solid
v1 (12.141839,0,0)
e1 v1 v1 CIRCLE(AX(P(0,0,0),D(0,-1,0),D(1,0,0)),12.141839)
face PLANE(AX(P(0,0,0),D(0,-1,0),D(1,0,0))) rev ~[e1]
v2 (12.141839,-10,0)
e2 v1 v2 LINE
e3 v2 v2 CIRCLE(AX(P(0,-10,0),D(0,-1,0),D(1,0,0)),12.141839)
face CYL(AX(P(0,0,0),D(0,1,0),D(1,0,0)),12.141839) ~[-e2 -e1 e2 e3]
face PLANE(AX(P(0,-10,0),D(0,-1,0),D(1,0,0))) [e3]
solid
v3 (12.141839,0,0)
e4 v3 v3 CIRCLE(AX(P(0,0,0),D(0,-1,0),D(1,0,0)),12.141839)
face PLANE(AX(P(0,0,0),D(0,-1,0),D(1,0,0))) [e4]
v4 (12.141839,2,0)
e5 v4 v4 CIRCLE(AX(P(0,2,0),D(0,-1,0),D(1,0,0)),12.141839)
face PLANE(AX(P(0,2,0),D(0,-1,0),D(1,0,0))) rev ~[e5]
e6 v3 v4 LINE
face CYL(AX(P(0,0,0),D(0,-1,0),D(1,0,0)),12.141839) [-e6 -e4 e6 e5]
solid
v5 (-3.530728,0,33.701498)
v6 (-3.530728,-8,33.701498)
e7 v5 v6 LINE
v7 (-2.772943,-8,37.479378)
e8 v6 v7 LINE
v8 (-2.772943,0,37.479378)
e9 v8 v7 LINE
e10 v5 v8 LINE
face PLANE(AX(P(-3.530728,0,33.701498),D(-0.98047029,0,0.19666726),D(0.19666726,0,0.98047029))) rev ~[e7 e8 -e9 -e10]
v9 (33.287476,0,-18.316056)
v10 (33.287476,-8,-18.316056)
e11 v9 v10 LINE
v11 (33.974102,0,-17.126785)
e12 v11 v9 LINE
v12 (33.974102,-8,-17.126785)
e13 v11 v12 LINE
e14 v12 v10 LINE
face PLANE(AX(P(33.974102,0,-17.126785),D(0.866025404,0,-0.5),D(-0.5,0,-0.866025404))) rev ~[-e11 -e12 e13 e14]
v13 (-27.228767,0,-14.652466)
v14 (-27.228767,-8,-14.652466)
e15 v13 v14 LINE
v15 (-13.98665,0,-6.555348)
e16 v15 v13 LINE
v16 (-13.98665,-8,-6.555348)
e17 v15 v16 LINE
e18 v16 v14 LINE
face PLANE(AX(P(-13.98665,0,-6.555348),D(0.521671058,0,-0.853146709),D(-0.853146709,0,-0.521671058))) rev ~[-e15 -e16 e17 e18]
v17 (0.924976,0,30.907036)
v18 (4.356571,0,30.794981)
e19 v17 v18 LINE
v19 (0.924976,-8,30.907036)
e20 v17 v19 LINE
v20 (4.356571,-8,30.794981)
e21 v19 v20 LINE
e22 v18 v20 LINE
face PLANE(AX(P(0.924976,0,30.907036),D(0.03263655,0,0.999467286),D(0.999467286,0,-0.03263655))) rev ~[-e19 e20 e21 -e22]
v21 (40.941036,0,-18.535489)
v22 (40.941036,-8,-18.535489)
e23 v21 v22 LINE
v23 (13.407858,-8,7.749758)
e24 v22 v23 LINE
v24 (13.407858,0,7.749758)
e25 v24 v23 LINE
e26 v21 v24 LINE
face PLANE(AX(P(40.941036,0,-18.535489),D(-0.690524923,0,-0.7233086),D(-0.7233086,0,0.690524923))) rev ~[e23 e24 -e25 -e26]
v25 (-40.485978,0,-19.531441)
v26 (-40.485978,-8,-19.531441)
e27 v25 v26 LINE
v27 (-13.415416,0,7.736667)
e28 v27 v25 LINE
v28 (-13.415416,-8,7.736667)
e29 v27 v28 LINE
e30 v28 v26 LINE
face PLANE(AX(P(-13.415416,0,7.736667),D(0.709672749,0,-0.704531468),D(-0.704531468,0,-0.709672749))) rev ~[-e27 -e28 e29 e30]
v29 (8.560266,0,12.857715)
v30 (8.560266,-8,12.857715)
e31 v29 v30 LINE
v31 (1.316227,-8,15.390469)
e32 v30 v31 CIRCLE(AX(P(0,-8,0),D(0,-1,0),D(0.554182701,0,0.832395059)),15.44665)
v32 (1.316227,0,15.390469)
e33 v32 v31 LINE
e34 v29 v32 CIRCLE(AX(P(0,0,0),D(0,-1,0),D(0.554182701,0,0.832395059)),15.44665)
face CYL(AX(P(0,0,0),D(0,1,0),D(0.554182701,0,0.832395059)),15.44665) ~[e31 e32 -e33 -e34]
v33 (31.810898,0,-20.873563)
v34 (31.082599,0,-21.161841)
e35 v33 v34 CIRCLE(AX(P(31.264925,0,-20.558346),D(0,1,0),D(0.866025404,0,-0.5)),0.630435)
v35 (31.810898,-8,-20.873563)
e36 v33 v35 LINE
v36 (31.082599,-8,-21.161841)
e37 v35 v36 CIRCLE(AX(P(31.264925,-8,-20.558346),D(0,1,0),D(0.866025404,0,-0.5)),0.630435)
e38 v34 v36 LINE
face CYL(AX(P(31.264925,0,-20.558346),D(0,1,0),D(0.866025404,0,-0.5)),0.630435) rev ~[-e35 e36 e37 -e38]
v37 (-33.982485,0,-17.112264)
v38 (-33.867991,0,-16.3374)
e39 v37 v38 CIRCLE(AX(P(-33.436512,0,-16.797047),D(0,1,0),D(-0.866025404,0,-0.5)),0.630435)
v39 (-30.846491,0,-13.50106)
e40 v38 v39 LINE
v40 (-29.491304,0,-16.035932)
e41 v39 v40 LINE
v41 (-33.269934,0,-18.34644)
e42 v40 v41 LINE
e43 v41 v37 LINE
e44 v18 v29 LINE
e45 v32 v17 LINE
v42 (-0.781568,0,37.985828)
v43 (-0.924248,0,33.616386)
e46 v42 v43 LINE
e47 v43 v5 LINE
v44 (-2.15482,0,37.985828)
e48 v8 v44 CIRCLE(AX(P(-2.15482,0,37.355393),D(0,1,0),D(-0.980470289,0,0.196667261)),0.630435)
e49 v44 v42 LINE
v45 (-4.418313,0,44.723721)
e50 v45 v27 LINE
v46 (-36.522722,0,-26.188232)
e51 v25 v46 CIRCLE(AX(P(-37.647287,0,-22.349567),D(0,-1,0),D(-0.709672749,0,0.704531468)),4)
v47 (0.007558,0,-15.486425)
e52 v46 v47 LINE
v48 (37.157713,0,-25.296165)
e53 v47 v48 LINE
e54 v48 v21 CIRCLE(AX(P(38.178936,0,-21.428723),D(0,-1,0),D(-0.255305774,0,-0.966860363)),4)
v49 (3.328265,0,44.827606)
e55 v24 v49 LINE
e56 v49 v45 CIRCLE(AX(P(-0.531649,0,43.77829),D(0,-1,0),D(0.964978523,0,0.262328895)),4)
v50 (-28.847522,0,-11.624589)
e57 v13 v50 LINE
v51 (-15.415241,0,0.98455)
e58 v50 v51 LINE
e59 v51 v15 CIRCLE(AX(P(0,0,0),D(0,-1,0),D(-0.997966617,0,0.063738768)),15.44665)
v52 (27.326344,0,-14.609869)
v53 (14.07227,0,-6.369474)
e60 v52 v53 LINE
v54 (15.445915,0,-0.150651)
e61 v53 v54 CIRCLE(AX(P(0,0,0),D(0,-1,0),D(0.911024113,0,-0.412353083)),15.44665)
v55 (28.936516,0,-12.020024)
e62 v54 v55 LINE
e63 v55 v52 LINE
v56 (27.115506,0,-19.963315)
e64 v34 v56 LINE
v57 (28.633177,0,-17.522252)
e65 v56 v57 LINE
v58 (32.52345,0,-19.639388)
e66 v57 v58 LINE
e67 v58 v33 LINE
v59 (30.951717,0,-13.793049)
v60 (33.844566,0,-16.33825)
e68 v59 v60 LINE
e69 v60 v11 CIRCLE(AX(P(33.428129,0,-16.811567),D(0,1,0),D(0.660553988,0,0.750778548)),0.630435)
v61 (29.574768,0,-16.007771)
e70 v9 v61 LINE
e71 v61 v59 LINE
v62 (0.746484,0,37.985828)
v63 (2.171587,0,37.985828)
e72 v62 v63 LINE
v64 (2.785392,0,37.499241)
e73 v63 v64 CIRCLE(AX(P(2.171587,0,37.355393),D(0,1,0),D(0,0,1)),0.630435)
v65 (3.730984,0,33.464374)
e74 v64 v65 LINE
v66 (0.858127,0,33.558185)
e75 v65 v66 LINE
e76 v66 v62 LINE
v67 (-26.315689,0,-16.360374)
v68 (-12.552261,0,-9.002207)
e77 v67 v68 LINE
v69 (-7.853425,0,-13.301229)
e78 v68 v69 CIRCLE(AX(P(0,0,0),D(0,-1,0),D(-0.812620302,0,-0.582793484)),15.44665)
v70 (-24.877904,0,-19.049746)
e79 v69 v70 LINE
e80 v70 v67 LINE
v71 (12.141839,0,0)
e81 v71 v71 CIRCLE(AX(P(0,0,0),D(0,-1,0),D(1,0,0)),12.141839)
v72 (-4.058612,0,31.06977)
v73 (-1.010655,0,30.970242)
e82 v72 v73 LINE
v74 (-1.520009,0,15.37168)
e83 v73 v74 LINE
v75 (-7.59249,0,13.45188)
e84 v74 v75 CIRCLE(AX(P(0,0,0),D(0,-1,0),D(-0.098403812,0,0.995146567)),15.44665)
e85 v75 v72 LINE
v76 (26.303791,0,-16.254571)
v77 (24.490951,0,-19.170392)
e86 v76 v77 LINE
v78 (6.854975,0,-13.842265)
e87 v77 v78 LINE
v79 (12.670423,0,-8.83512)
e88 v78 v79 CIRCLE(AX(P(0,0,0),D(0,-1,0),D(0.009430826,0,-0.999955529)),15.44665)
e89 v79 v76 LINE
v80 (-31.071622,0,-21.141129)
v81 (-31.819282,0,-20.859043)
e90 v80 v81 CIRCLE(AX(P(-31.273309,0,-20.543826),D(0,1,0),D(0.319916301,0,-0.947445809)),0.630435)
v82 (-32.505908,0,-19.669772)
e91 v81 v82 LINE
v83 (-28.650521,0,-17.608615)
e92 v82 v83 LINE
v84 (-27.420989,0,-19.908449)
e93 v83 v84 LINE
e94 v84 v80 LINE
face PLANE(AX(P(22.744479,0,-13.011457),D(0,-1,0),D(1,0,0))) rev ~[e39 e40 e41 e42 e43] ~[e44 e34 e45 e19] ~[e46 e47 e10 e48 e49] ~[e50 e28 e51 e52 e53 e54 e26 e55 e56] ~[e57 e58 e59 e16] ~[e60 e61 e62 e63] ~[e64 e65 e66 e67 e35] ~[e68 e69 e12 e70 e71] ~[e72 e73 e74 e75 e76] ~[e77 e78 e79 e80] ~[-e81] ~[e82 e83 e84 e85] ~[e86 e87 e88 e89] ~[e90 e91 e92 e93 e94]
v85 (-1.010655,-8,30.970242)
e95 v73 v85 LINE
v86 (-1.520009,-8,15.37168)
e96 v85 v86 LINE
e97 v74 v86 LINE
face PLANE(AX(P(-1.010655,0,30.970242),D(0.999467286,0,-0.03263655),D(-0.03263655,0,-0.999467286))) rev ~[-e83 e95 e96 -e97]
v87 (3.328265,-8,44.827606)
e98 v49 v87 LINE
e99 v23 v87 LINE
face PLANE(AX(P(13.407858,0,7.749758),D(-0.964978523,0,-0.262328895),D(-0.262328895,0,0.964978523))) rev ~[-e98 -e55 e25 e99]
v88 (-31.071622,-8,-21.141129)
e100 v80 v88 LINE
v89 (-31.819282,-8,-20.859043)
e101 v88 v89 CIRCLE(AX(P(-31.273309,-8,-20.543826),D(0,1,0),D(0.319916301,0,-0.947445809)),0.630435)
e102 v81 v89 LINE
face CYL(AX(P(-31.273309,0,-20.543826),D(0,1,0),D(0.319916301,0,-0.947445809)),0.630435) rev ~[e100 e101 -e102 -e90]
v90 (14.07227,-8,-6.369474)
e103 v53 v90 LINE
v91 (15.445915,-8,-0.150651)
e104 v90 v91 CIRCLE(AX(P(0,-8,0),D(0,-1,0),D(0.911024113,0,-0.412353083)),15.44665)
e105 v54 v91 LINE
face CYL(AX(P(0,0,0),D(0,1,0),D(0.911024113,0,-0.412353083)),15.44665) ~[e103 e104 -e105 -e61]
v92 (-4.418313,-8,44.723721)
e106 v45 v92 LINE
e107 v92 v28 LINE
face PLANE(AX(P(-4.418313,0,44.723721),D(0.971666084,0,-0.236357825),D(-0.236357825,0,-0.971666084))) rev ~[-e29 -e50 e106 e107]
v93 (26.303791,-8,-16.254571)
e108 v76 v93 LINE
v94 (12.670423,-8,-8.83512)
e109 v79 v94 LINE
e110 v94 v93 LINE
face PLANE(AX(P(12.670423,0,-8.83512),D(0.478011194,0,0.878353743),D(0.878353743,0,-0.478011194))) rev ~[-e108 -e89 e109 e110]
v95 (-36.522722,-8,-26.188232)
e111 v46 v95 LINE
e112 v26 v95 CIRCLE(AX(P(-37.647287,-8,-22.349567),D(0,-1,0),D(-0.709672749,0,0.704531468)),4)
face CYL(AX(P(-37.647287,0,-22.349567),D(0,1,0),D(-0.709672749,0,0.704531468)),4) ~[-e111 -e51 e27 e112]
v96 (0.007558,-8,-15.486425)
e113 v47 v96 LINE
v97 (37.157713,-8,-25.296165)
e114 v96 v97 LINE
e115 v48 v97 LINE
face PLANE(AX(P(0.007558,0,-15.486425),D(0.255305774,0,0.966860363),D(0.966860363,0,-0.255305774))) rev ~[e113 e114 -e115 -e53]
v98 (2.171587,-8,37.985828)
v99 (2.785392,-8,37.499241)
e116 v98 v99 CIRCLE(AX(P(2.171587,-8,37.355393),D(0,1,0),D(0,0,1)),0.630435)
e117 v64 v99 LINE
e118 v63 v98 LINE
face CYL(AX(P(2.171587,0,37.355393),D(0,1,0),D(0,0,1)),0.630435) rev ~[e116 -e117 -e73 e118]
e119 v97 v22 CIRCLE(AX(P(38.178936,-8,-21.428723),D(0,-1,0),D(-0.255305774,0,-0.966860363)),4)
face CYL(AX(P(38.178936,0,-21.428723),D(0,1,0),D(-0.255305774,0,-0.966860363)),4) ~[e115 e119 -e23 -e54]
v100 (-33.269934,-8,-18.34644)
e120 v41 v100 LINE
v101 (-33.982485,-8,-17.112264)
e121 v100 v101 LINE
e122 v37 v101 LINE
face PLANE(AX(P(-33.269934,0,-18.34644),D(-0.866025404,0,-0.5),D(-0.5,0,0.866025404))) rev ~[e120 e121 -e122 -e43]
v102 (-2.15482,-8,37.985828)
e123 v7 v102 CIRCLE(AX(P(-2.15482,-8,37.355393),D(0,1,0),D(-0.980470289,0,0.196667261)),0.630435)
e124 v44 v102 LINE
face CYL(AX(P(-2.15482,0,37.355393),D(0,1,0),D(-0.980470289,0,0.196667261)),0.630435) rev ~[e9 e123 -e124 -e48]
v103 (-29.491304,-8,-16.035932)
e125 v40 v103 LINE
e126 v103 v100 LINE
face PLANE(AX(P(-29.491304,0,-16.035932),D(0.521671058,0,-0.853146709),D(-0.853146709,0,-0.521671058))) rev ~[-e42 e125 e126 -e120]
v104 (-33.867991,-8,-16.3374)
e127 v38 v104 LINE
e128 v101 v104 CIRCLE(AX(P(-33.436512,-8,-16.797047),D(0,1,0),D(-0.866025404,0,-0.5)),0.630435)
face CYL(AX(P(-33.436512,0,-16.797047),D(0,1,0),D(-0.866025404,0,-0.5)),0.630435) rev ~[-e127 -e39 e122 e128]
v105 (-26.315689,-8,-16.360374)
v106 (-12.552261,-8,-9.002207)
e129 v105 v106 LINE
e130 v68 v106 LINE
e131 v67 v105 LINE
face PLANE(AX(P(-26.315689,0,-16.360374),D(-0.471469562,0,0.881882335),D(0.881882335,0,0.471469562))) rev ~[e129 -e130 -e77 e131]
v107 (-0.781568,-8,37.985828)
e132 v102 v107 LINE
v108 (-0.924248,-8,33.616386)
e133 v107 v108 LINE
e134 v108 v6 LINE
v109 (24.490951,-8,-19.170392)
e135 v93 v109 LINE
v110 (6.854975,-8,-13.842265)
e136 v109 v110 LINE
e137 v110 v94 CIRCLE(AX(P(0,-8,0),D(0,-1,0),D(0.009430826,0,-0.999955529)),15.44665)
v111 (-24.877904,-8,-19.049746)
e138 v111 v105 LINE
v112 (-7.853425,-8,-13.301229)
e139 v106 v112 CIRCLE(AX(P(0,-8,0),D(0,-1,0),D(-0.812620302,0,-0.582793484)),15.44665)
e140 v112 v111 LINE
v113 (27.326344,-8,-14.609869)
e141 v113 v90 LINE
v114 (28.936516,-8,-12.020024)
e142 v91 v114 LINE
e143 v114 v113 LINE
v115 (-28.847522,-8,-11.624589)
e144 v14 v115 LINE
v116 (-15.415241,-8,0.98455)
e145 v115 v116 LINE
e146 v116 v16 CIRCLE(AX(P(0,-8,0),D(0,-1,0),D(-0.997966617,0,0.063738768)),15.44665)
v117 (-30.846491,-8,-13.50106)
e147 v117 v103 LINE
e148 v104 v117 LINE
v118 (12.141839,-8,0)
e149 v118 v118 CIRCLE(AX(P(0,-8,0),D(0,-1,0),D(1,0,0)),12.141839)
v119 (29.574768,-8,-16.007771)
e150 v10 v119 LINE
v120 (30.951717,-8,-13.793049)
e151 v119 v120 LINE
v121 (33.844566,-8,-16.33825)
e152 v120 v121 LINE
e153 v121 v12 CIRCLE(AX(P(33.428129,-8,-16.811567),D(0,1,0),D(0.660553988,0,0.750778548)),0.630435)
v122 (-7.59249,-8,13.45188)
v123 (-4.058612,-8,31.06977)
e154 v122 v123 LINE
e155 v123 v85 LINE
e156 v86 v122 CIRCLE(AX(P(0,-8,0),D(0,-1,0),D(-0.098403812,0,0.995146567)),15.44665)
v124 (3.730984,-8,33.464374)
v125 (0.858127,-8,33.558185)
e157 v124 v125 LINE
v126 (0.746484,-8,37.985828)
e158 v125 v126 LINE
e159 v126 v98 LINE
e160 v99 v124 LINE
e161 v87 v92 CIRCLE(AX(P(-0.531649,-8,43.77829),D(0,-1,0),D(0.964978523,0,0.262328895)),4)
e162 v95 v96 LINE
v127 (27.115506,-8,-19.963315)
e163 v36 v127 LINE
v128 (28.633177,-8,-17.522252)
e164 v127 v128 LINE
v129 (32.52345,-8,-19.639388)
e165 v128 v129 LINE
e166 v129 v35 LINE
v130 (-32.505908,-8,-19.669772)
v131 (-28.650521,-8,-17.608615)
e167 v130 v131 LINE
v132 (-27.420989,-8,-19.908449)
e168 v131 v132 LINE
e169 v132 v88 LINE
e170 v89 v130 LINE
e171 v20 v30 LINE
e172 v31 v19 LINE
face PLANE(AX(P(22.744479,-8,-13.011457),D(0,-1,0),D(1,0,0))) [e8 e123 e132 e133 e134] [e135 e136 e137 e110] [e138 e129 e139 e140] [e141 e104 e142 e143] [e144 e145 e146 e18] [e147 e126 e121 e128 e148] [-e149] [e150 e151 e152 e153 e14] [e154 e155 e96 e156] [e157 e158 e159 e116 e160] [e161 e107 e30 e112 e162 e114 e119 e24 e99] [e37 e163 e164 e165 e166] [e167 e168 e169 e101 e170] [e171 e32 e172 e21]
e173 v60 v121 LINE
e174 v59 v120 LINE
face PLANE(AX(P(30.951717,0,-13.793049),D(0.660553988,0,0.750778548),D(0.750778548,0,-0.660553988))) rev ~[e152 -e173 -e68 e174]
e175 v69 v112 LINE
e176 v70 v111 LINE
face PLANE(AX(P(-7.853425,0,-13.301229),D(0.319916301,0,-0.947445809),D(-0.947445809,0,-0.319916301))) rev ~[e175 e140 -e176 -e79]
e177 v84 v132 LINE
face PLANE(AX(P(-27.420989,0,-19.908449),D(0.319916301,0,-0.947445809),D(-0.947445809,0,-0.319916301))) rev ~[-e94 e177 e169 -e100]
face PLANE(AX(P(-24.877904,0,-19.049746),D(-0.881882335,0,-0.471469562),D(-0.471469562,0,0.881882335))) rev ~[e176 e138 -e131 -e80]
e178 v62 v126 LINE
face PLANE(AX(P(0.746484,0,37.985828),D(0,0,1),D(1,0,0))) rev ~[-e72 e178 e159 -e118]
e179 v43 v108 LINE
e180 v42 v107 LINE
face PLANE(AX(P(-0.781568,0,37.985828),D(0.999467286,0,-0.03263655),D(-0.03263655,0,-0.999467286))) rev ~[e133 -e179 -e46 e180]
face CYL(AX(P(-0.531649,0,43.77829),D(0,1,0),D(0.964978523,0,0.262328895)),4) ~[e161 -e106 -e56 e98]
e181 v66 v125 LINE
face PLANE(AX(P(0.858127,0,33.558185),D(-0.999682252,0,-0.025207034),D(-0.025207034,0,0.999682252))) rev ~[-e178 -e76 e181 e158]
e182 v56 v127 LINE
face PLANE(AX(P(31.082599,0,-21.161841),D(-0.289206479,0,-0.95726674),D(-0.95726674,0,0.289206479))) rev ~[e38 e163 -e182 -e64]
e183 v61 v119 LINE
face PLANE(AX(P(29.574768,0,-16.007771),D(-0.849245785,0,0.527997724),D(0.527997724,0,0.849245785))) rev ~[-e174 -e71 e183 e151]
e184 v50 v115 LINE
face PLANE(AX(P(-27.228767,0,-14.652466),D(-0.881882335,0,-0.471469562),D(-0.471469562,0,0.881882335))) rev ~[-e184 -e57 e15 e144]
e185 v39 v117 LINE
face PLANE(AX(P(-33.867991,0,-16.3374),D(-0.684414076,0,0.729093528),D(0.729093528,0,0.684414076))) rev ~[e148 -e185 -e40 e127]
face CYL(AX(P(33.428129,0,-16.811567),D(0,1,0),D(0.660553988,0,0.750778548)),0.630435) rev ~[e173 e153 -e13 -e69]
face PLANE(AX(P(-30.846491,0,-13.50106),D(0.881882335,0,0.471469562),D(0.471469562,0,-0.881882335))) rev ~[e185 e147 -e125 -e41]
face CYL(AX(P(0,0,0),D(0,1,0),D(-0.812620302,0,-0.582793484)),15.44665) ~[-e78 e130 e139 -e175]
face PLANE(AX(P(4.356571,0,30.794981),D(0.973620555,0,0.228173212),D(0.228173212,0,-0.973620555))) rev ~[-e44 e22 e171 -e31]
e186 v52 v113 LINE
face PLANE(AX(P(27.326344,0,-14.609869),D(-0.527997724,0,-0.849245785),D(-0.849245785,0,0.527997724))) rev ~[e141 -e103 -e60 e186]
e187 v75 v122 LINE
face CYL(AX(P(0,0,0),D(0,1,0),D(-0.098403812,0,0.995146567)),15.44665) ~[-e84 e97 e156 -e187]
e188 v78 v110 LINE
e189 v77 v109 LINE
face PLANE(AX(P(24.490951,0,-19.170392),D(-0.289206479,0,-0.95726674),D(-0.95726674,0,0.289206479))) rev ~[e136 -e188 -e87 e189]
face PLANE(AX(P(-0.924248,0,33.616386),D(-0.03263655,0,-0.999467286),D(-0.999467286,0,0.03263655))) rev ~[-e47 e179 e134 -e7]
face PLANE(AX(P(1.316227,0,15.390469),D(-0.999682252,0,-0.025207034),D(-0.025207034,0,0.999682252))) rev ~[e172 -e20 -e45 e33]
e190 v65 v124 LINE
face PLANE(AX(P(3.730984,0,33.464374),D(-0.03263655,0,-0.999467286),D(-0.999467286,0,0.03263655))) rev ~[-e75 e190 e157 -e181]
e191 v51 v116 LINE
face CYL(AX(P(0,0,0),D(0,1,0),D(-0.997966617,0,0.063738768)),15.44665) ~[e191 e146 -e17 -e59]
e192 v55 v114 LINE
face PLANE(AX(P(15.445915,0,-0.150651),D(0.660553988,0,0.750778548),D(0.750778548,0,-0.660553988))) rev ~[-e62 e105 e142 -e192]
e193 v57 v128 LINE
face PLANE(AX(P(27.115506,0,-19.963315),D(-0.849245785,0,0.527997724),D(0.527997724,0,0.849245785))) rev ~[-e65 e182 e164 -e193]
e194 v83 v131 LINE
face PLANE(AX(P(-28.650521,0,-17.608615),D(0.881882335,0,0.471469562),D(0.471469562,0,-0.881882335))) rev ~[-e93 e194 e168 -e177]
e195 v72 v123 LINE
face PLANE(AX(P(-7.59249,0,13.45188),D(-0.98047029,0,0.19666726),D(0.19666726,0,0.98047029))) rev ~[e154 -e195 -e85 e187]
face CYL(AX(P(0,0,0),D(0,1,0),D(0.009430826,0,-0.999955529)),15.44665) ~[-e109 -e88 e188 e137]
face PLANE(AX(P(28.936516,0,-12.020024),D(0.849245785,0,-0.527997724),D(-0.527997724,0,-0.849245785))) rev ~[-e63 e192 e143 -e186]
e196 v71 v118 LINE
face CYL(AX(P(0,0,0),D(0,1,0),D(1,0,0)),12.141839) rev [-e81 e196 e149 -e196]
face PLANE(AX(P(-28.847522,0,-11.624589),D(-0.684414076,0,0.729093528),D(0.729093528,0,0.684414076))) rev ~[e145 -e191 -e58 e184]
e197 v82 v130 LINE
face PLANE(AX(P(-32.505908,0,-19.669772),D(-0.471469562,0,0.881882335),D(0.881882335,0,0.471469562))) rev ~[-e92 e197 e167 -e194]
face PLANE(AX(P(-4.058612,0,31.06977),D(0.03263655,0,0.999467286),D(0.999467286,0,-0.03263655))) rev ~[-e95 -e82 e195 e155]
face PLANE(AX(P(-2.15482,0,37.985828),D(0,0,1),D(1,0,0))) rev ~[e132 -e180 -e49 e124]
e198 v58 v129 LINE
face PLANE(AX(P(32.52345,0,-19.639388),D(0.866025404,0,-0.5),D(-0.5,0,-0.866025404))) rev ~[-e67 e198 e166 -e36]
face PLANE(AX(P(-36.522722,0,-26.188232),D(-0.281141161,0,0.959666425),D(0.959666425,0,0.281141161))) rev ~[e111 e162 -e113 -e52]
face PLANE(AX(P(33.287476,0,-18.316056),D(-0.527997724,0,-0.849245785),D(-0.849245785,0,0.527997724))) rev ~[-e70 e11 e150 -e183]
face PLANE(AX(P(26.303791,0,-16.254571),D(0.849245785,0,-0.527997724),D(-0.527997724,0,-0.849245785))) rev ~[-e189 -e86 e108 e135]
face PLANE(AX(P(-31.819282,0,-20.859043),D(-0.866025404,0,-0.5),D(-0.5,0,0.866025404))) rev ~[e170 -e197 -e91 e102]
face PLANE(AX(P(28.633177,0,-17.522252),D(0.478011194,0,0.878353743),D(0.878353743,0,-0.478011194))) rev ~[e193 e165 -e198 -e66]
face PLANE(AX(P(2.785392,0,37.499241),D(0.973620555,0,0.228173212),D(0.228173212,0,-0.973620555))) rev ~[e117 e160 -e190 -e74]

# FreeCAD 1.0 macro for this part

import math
import FreeCAD as App
import Part
import Sketcher

V = App.Vector

doc = App.newDocument("Part")
body = doc.addObject("PartDesign::Body", "Body")

# Sketch on XZ plane
sketch1 = body.newObject("Sketcher::SketchObject", "Sketch")
sketch1.AttachmentSupport = (doc.getObject("XZ_Plane"), [""])
sketch1.MapMode = "FlatFace"
sketch1.addGeometry([
    Part.LineSegment(V(-36.522722, -26.188232, 0), V(0.007558, -15.486425, 0)),  # 0
    Part.LineSegment(V(0.007558, -15.486425, 0), V(37.157713, -25.296165, 0)),  # 1
    Part.ArcOfCircle(Part.Circle(V(38.178936, -21.428723, 0), V(0, 0, 1), 4), math.radians(-104.791704), math.radians(46.328325)),  # 2
    Part.LineSegment(V(40.941036, -18.535489, 0), V(13.407858, 7.749758, 0)),  # 3
    Part.LineSegment(V(13.407858, 7.749758, 0), V(3.328265, 44.827606, 0)),  # 4
    Part.ArcOfCircle(Part.Circle(V(-0.531649, 43.77829, 0), V(0, 0, 1), 4), math.radians(15.208296), math.radians(166.328325)),  # 5
    Part.LineSegment(V(-4.418313, 44.723721, 0), V(-13.415416, 7.736667, 0)),  # 6
    Part.LineSegment(V(-13.415416, 7.736667, 0), V(-40.485978, -19.531441, 0)),  # 7
    Part.ArcOfCircle(Part.Circle(V(-37.647287, -22.349567, 0), V(0, 0, 1), 4), math.radians(135.208296), math.radians(286.328325)),  # 8
    Part.LineSegment(V(-7.853425, -13.301229, 0), V(-24.877904, -19.049746, 0)),  # 9
    Part.LineSegment(V(-24.877904, -19.049746, 0), V(-26.315689, -16.360374, 0)),  # 10
    Part.LineSegment(V(-26.315689, -16.360374, 0), V(-12.552261, -9.002207, 0)),  # 11
    Part.ArcOfCircle(Part.Circle(V(0, 0, 0), V(0, 0, 1), 15.44665), math.radians(-144.352738), math.radians(-120.558813)),  # 12
    Part.LineSegment(V(-27.420989, -19.908449, 0), V(-31.071622, -21.141129, 0)),  # 13
    Part.ArcOfCircle(Part.Circle(V(-31.273309, -20.543826, 0), V(0, 0, 1), 0.630435), math.radians(-150), math.radians(-71.342137)),  # 14
    Part.LineSegment(V(-31.819282, -20.859043, 0), V(-32.505908, -19.669772, 0)),  # 15
    Part.LineSegment(V(-32.505908, -19.669772, 0), V(-28.650521, -17.608615, 0)),  # 16
    Part.LineSegment(V(-28.650521, -17.608615, 0), V(-27.420989, -19.908449, 0)),  # 17
    Part.LineSegment(V(-13.98665, -6.555348, 0), V(-27.228767, -14.652466, 0)),  # 18
    Part.LineSegment(V(-27.228767, -14.652466, 0), V(-28.847522, -11.624589, 0)),  # 19
    Part.LineSegment(V(-28.847522, -11.624589, 0), V(-15.415241, 0.98455, 0)),  # 20
    Part.ArcOfCircle(Part.Circle(V(0, 0, 0), V(0, 0, 1), 15.44665), math.radians(176.34556), math.radians(205.111833)),  # 21
    Part.LineSegment(V(-29.491304, -16.035932, 0), V(-33.269934, -18.34644, 0)),  # 22
    Part.LineSegment(V(-33.269934, -18.34644, 0), V(-33.982485, -17.112264, 0)),  # 23
    Part.ArcOfCircle(Part.Circle(V(-33.436512, -16.797047, 0), V(0, 0, 1), 0.630435), math.radians(133.189545), math.radians(210)),  # 24
    Part.LineSegment(V(-33.867991, -16.3374, 0), V(-30.846491, -13.50106, 0)),  # 25
    Part.LineSegment(V(-30.846491, -13.50106, 0), V(-29.491304, -16.035932, 0)),  # 26
    Part.LineSegment(V(15.445915, -0.150651, 0), V(28.936516, -12.020024, 0)),  # 27
    Part.LineSegment(V(28.936516, -12.020024, 0), V(27.326344, -14.609869, 0)),  # 28
    Part.LineSegment(V(27.326344, -14.609869, 0), V(14.07227, -6.369474, 0)),  # 29
    Part.ArcOfCircle(Part.Circle(V(0, 0, 0), V(0, 0, 1), 15.44665), math.radians(-24.352738), math.radians(-0.558813)),  # 30
    Part.LineSegment(V(30.951717, -13.793049, 0), V(33.844566, -16.33825, 0)),  # 31
    Part.ArcOfCircle(Part.Circle(V(33.428129, -16.811567, 0), V(0, 0, 1), 0.630435), math.radians(-30), math.radians(48.657863)),  # 32
    Part.LineSegment(V(33.974102, -17.126785, 0), V(33.287476, -18.316056, 0)),  # 33
    Part.LineSegment(V(33.287476, -18.316056, 0), V(29.574768, -16.007771, 0)),  # 34
    Part.LineSegment(V(29.574768, -16.007771, 0), V(30.951717, -13.793049, 0)),  # 35
    Part.LineSegment(V(28.633177, -17.522252, 0), V(32.52345, -19.639388, 0)),  # 36
    Part.LineSegment(V(32.52345, -19.639388, 0), V(31.810898, -20.873563, 0)),  # 37
    Part.ArcOfCircle(Part.Circle(V(31.264925, -20.558346, 0), V(0, 0, 1), 0.630435), math.radians(-106.810455), math.radians(-30)),  # 38
    Part.LineSegment(V(31.082599, -21.161841, 0), V(27.115506, -19.963315, 0)),  # 39
    Part.LineSegment(V(27.115506, -19.963315, 0), V(28.633177, -17.522252, 0)),  # 40
    Part.LineSegment(V(24.490951, -19.170392, 0), V(6.854975, -13.842265, 0)),  # 41
    Part.ArcOfCircle(Part.Circle(V(0, 0, 0), V(0, 0, 1), 15.44665), math.radians(-63.65444), math.radians(-34.888167)),  # 42
    Part.LineSegment(V(12.670423, -8.83512, 0), V(26.303791, -16.254571, 0)),  # 43
    Part.LineSegment(V(26.303791, -16.254571, 0), V(24.490951, -19.170392, 0)),  # 44
    Part.Circle(V(0, 0, 0), V(0, 0, 1), 12.141839),  # 45
    Part.LineSegment(V(-7.59249, 13.45188, 0), V(-4.058612, 31.06977, 0)),  # 46
    Part.LineSegment(V(-4.058612, 31.06977, 0), V(-1.010655, 30.970242, 0)),  # 47
    Part.LineSegment(V(-1.010655, 30.970242, 0), V(-1.520009, 15.37168, 0)),  # 48
    Part.ArcOfCircle(Part.Circle(V(0, 0, 0), V(0, 0, 1), 15.44665), math.radians(95.647262), math.radians(119.441187)),  # 49
    Part.LineSegment(V(-3.530728, 33.701498, 0), V(-2.772943, 37.479379, 0)),  # 50
    Part.ArcOfCircle(Part.Circle(V(-2.15482, 37.355393, 0), V(0, 0, 1), 0.630435), math.radians(90), math.radians(168.657863)),  # 51
    Part.LineSegment(V(-2.15482, 37.985828, 0), V(-0.781568, 37.985828, 0)),  # 52
    Part.LineSegment(V(-0.781568, 37.985828, 0), V(-0.924248, 33.616386, 0)),  # 53
    Part.LineSegment(V(-0.924248, 33.616386, 0), V(-3.530728, 33.701498, 0)),  # 54
    Part.LineSegment(V(0.858127, 33.558185, 0), V(0.746484, 37.985828, 0)),  # 55
    Part.LineSegment(V(0.746484, 37.985828, 0), V(2.171587, 37.985828, 0)),  # 56
    Part.ArcOfCircle(Part.Circle(V(2.171587, 37.355393, 0), V(0, 0, 1), 0.630435), math.radians(13.189545), math.radians(90)),  # 57
    Part.LineSegment(V(2.785392, 37.499241, 0), V(3.730984, 33.464374, 0)),  # 58
    Part.LineSegment(V(3.730984, 33.464374, 0), V(0.858127, 33.558185, 0)),  # 59
    Part.LineSegment(V(4.356571, 30.794981, 0), V(8.560266, 12.857715, 0)),  # 60
    Part.ArcOfCircle(Part.Circle(V(0, 0, 0), V(0, 0, 1), 15.44665), math.radians(56.34556), math.radians(85.111833)),  # 61
    Part.LineSegment(V(1.316227, 15.390469, 0), V(0.924976, 30.907036, 0)),  # 62
    Part.LineSegment(V(0.924976, 30.907036, 0), V(4.356571, 30.794981, 0)),  # 63
], False)
sketch1.addConstraint([
    Sketcher.Constraint("Coincident", 0, 2, 1, 1),
    Sketcher.Constraint("Coincident", 1, 2, 2, 1),
    Sketcher.Constraint("Coincident", 2, 2, 3, 1),
    Sketcher.Constraint("Coincident", 3, 2, 4, 1),
    Sketcher.Constraint("Coincident", 4, 2, 5, 1),
    Sketcher.Constraint("Coincident", 5, 2, 6, 1),
    Sketcher.Constraint("Coincident", 6, 2, 7, 1),
    Sketcher.Constraint("Coincident", 7, 2, 8, 1),
    Sketcher.Constraint("Coincident", 8, 2, 0, 1),
    Sketcher.Constraint("Coincident", 9, 2, 10, 1),
    Sketcher.Constraint("Coincident", 10, 2, 11, 1),
    Sketcher.Constraint("Coincident", 11, 2, 12, 1),
    Sketcher.Constraint("Coincident", 12, 2, 9, 1),
    Sketcher.Constraint("Coincident", 13, 2, 14, 2),
    Sketcher.Constraint("Coincident", 14, 1, 15, 1),
    Sketcher.Constraint("Coincident", 15, 2, 16, 1),
    Sketcher.Constraint("Coincident", 16, 2, 17, 1),
    Sketcher.Constraint("Coincident", 17, 2, 13, 1),
    Sketcher.Constraint("Coincident", 18, 2, 19, 1),
    Sketcher.Constraint("Coincident", 19, 2, 20, 1),
    Sketcher.Constraint("Coincident", 20, 2, 21, 1),
    Sketcher.Constraint("Coincident", 21, 2, 18, 1),
    Sketcher.Constraint("Coincident", 22, 2, 23, 1),
    Sketcher.Constraint("Coincident", 23, 2, 24, 2),
    Sketcher.Constraint("Coincident", 24, 1, 25, 1),
    Sketcher.Constraint("Coincident", 25, 2, 26, 1),
    Sketcher.Constraint("Coincident", 26, 2, 22, 1),
    Sketcher.Constraint("Coincident", 27, 2, 28, 1),
    Sketcher.Constraint("Coincident", 28, 2, 29, 1),
    Sketcher.Constraint("Coincident", 29, 2, 30, 1),
    Sketcher.Constraint("Coincident", 30, 2, 27, 1),
    Sketcher.Constraint("Coincident", 31, 2, 32, 2),
    Sketcher.Constraint("Coincident", 32, 1, 33, 1),
    Sketcher.Constraint("Coincident", 33, 2, 34, 1),
    Sketcher.Constraint("Coincident", 34, 2, 35, 1),
    Sketcher.Constraint("Coincident", 35, 2, 31, 1),
    Sketcher.Constraint("Coincident", 36, 2, 37, 1),
    Sketcher.Constraint("Coincident", 37, 2, 38, 2),
    Sketcher.Constraint("Coincident", 38, 1, 39, 1),
    Sketcher.Constraint("Coincident", 39, 2, 40, 1),
    Sketcher.Constraint("Coincident", 40, 2, 36, 1),
    Sketcher.Constraint("Coincident", 41, 2, 42, 1),
    Sketcher.Constraint("Coincident", 42, 2, 43, 1),
    Sketcher.Constraint("Coincident", 43, 2, 44, 1),
    Sketcher.Constraint("Coincident", 44, 2, 41, 1),
    Sketcher.Constraint("Coincident", 46, 2, 47, 1),
    Sketcher.Constraint("Coincident", 47, 2, 48, 1),
    Sketcher.Constraint("Coincident", 48, 2, 49, 1),
    Sketcher.Constraint("Coincident", 49, 2, 46, 1),
    Sketcher.Constraint("Coincident", 50, 2, 51, 2),
    Sketcher.Constraint("Coincident", 51, 1, 52, 1),
    Sketcher.Constraint("Coincident", 52, 2, 53, 1),
    Sketcher.Constraint("Coincident", 53, 2, 54, 1),
    Sketcher.Constraint("Coincident", 54, 2, 50, 1),
    Sketcher.Constraint("Coincident", 55, 2, 56, 1),
    Sketcher.Constraint("Coincident", 56, 2, 57, 2),
    Sketcher.Constraint("Coincident", 57, 1, 58, 1),
    Sketcher.Constraint("Coincident", 58, 2, 59, 1),
    Sketcher.Constraint("Coincident", 59, 2, 55, 1),
    Sketcher.Constraint("Coincident", 60, 2, 61, 1),
    Sketcher.Constraint("Coincident", 61, 2, 62, 1),
    Sketcher.Constraint("Coincident", 62, 2, 63, 1),
    Sketcher.Constraint("Coincident", 63, 2, 60, 1),
    Sketcher.Constraint("Horizontal", 52),
    Sketcher.Constraint("Horizontal", 56),
    Sketcher.Constraint("Coincident", 12, 3, -1, 1),
    Sketcher.Constraint("Coincident", 21, 3, -1, 1),
    Sketcher.Constraint("Coincident", 30, 3, -1, 1),
    Sketcher.Constraint("Coincident", 42, 3, -1, 1),
    Sketcher.Constraint("Coincident", 45, 3, -1, 1),
    Sketcher.Constraint("Coincident", 49, 3, -1, 1),
    Sketcher.Constraint("Coincident", 61, 3, -1, 1),
    Sketcher.Constraint("Radius", 2, 4.0),
    Sketcher.Constraint("Radius", 5, 4.0),
    Sketcher.Constraint("Radius", 8, 4.0),
    Sketcher.Constraint("Diameter", 45, 24.283678),
    Sketcher.Constraint("Radius", 12, 15.44665),
    Sketcher.Constraint("Radius", 21, 15.44665),
    Sketcher.Constraint("Radius", 30, 15.44665),
    Sketcher.Constraint("Radius", 42, 15.44665),
    Sketcher.Constraint("Radius", 49, 15.44665),
    Sketcher.Constraint("Radius", 61, 15.44665),
    Sketcher.Constraint("Radius", 14, 0.630435),
    Sketcher.Constraint("Radius", 24, 0.630435),
    Sketcher.Constraint("Radius", 32, 0.630435),
    Sketcher.Constraint("Radius", 38, 0.630435),
    Sketcher.Constraint("Radius", 51, 0.630435),
    Sketcher.Constraint("Radius", 57, 0.630435),
    Sketcher.Constraint("Distance", 18, 15.5215),
    Sketcher.Constraint("Distance", 43, 15.5215),
    Sketcher.Constraint("Distance", 62, 15.5215),
    Sketcher.Constraint("DistanceY", 24, 1, -1, 1, 16.3374),
    Sketcher.Constraint("DistanceX", -1, 1, 37, 2, 31.810898),
    Sketcher.Constraint("DistanceX", -1, 1, 38, 1, 31.082599),
    Sketcher.Constraint("Distance", 13, 3.853131),
    Sketcher.Constraint("Distance", 16, 4.371771),
    Sketcher.Constraint("Distance", 17, 2.60787),
    Sketcher.Constraint("Distance", 20, 18.423262),
    Sketcher.Constraint("Distance", 22, 4.429051),
    Sketcher.Constraint("Distance", 26, 2.874389),
    Sketcher.Constraint("Distance", 31, 3.853131),
    Sketcher.Constraint("Distance", 34, 4.371771),
    Sketcher.Constraint("Distance", 35, 2.60787),
    Sketcher.Constraint("Distance", 36, 4.429051),
    Sketcher.Constraint("Distance", 40, 2.874389),
    Sketcher.Constraint("Distance", 41, 18.423262),
    Sketcher.Constraint("Distance", 50, 3.853131),
    Sketcher.Constraint("Distance", 53, 4.371771),
    Sketcher.Constraint("Distance", 54, 2.60787),
    Sketcher.Constraint("Distance", 55, 4.429051),
    Sketcher.Constraint("Distance", 59, 2.874389),
    Sketcher.Constraint("Distance", 60, 18.423262),
    Sketcher.Constraint("DistanceX", 52, 1, 52, 2, 1.373252),
    Sketcher.Constraint("DistanceX", 56, 1, 56, 2, 1.425103),
    Sketcher.Constraint("DistanceX", 5, 3, -1, 1, 0.531649),
    Sketcher.Constraint("DistanceY", -1, 1, 5, 3, 43.77829),
    Sketcher.Constraint("DistanceX", 14, 3, -1, 1, 31.273309),
    Sketcher.Constraint("DistanceX", -1, 1, 32, 3, 33.428129),
    Sketcher.Constraint("DistanceX", 51, 3, -1, 1, 2.15482),
    Sketcher.Constraint("DistanceX", -1, 1, 0, 2, 0.007558),
    Sketcher.Constraint("DistanceY", 2, 2, -1, 1, 18.535489),
    Sketcher.Constraint("DistanceX", -1, 1, 3, 2, 13.407858),
    Sketcher.Constraint("DistanceY", -1, 1, 3, 2, 7.749758),
    Sketcher.Constraint("DistanceY", -1, 1, 5, 2, 44.723721),
    Sketcher.Constraint("DistanceY", 7, 2, -1, 1, 19.531441),
    Sketcher.Constraint("DistanceX", 10, 2, -1, 1, 26.315689),
    Sketcher.Constraint("DistanceX", 11, 2, -1, 1, 12.552261),
    Sketcher.Constraint("DistanceY", 12, 2, -1, 1, 13.301229),
    Sketcher.Constraint("DistanceY", 13, 2, -1, 1, 21.141129),
    Sketcher.Constraint("DistanceX", 14, 1, -1, 1, 31.819282),
    Sketcher.Constraint("DistanceY", 15, 2, -1, 1, 19.669772),
    Sketcher.Constraint("DistanceX", 16, 2, -1, 1, 28.650521),
    Sketcher.Constraint("DistanceX", 17, 2, -1, 1, 27.420989),
    Sketcher.Constraint("DistanceY", 17, 2, -1, 1, 19.908449),
    Sketcher.Constraint("DistanceX", 19, 2, -1, 1, 28.847522),
    Sketcher.Constraint("DistanceY", 19, 2, -1, 1, 11.624589),
    Sketcher.Constraint("DistanceX", 21, 2, -1, 1, 13.98665),
    Sketcher.Constraint("DistanceY", 22, 2, -1, 1, 18.34644),
    Sketcher.Constraint("DistanceX", 24, 1, -1, 1, 33.867991),
    Sketcher.Constraint("DistanceX", 25, 2, -1, 1, 30.846491),
    Sketcher.Constraint("DistanceY", 25, 2, -1, 1, 13.50106),
    Sketcher.Constraint("DistanceY", 28, 2, -1, 1, 14.609869),
    Sketcher.Constraint("DistanceX", -1, 1, 29, 2, 14.07227),
    Sketcher.Constraint("DistanceY", 30, 2, -1, 1, 0.150651),
    Sketcher.Constraint("DistanceY", 31, 2, -1, 1, 16.33825),
    Sketcher.Constraint("DistanceX", -1, 1, 34, 2, 29.574768),
    Sketcher.Constraint("DistanceY", 34, 2, -1, 1, 16.007771),
    Sketcher.Constraint("DistanceY", 35, 2, -1, 1, 13.793049),
    Sketcher.Constraint("DistanceX", -1, 1, 36, 2, 32.52345),
    Sketcher.Constraint("DistanceY", 38, 1, -1, 1, 21.161841),
    Sketcher.Constraint("DistanceY", 42, 2, -1, 1, 8.83512),
    Sketcher.Constraint("DistanceX", -1, 1, 43, 2, 26.303791),
    Sketcher.Constraint("DistanceX", -1, 1, 44, 2, 24.490951),
    Sketcher.Constraint("DistanceY", 44, 2, -1, 1, 19.170392),
    Sketcher.Constraint("DistanceY", -1, 1, 46, 2, 31.06977),
    Sketcher.Constraint("DistanceX", 48, 2, -1, 1, 1.520009),
    Sketcher.Constraint("DistanceX", 49, 2, -1, 1, 7.59249),
    Sketcher.Constraint("DistanceY", -1, 1, 50, 2, 37.479379),
    Sketcher.Constraint("DistanceX", 51, 1, -1, 1, 2.15482),
    Sketcher.Constraint("DistanceX", 54, 2, -1, 1, 3.530728),
    Sketcher.Constraint("DistanceX", -1, 1, 57, 1, 2.785392),
    Sketcher.Constraint("DistanceY", -1, 1, 57, 1, 37.499241),
    Sketcher.Constraint("DistanceY", -1, 1, 61, 2, 15.390469),
    Sketcher.Constraint("DistanceX", -1, 1, 63, 2, 4.356571),
    Sketcher.Constraint("DistanceY", -1, 1, 63, 2, 30.794981),
    Sketcher.Constraint("Distance", 0, 38.065602),
    Sketcher.Constraint("Distance", 1, 38.423495),
    Sketcher.Constraint("Distance", 3, 38.065602),
    Sketcher.Constraint("Distance", 4, 38.423495),
    Sketcher.Constraint("Distance", 6, 38.065602),
    Sketcher.Constraint("Distance", 7, 38.423495),
    Sketcher.Constraint("Distance", 9, 17.968816),
    Sketcher.Constraint("Distance", 10, 3.049582),
    Sketcher.Constraint("Distance", 11, 15.606876),
    Sketcher.Constraint("Distance", 19, 3.433424),
    Sketcher.Constraint("Distance", 23, 1.425103),
    Sketcher.Constraint("Distance", 27, 17.968816),
    Sketcher.Constraint("Distance", 28, 3.049582),
    Sketcher.Constraint("Distance", 29, 15.606876),
    Sketcher.Constraint("Distance", 33, 1.373252),
    Sketcher.Constraint("Distance", 37, 1.425103),
    Sketcher.Constraint("Distance", 39, 4.144188),
    Sketcher.Constraint("Distance", 46, 17.968816),
    Sketcher.Constraint("Distance", 47, 3.049582),
    Sketcher.Constraint("Distance", 48, 15.606876),
    Sketcher.Constraint("Distance", 58, 4.144188),
    Sketcher.Constraint("Distance", 63, 3.433424),
    Sketcher.Constraint("DistanceX", -1, 1, 2, 3, 38.178936),
    Sketcher.Constraint("DistanceX", 8, 3, -1, 1, 37.647287),
    Sketcher.Constraint("DistanceY", 8, 3, -1, 1, 22.349567),
    Sketcher.Constraint("DistanceX", 24, 3, -1, 1, 33.436512),
    Sketcher.Constraint("DistanceX", -1, 1, 38, 3, 31.264925),
    Sketcher.Constraint("DistanceY", -1, 1, 51, 3, 37.355393),
    Sketcher.Constraint("DistanceX", -1, 1, 57, 3, 2.171587),
    Sketcher.Constraint("DistanceY", 0, 2, -1, 1, 15.486425),
    Sketcher.Constraint("DistanceX", 22, 2, -1, 1, 33.269934),
    Sketcher.Constraint("DistanceX", -1, 1, 32, 1, 33.974102),
    Sketcher.Constraint("DistanceX", -1, 1, 39, 2, 27.115506),
    Sketcher.Constraint("DistanceX", -1, 1, 55, 2, 0.746484),
    Sketcher.Constraint("DistanceX", -1, 1, 58, 2, 3.730984),
])
pad1 = body.newObject("PartDesign::Pad", "Pad")
pad1.Profile = sketch1
pad1.Length = 8
body2 = doc.addObject("PartDesign::Body", "Body001")

# Sketch on XZ plane
sketch2 = body2.newObject("Sketcher::SketchObject", "Sketch001")
sketch2.AttachmentSupport = (doc.getObject("XZ_Plane001"), [""])
sketch2.MapMode = "FlatFace"
sketch2.addGeometry(Part.Circle(V(0, 0, 0), V(0, 0, 1), 12), False)
sketch2.addConstraint([
    Sketcher.Constraint("Coincident", 0, 3, -1, 1),
    Sketcher.Constraint("Diameter", 0, 24.283678),
])
pad2 = body2.newObject("PartDesign::Pad", "Pad001")
pad2.Profile = sketch2
pad2.Length = 2
pad2.Reversed = True
body3 = doc.addObject("PartDesign::Body", "Body002")

# Sketch on XZ plane
sketch3 = body3.newObject("Sketcher::SketchObject", "Sketch002")
sketch3.AttachmentSupport = (doc.getObject("XZ_Plane002"), [""])
sketch3.MapMode = "FlatFace"
sketch3.addGeometry(Part.Circle(V(0, 0, 0), V(0, 0, 1), 12), False)
sketch3.addConstraint([
    Sketcher.Constraint("Coincident", 0, 3, -1, 1),
    Sketcher.Constraint("Diameter", 0, 24.283678),
])
pad3 = body3.newObject("PartDesign::Pad", "Pad002")
pad3.Profile = sketch3
pad3.Length = 10

doc.recompute()
